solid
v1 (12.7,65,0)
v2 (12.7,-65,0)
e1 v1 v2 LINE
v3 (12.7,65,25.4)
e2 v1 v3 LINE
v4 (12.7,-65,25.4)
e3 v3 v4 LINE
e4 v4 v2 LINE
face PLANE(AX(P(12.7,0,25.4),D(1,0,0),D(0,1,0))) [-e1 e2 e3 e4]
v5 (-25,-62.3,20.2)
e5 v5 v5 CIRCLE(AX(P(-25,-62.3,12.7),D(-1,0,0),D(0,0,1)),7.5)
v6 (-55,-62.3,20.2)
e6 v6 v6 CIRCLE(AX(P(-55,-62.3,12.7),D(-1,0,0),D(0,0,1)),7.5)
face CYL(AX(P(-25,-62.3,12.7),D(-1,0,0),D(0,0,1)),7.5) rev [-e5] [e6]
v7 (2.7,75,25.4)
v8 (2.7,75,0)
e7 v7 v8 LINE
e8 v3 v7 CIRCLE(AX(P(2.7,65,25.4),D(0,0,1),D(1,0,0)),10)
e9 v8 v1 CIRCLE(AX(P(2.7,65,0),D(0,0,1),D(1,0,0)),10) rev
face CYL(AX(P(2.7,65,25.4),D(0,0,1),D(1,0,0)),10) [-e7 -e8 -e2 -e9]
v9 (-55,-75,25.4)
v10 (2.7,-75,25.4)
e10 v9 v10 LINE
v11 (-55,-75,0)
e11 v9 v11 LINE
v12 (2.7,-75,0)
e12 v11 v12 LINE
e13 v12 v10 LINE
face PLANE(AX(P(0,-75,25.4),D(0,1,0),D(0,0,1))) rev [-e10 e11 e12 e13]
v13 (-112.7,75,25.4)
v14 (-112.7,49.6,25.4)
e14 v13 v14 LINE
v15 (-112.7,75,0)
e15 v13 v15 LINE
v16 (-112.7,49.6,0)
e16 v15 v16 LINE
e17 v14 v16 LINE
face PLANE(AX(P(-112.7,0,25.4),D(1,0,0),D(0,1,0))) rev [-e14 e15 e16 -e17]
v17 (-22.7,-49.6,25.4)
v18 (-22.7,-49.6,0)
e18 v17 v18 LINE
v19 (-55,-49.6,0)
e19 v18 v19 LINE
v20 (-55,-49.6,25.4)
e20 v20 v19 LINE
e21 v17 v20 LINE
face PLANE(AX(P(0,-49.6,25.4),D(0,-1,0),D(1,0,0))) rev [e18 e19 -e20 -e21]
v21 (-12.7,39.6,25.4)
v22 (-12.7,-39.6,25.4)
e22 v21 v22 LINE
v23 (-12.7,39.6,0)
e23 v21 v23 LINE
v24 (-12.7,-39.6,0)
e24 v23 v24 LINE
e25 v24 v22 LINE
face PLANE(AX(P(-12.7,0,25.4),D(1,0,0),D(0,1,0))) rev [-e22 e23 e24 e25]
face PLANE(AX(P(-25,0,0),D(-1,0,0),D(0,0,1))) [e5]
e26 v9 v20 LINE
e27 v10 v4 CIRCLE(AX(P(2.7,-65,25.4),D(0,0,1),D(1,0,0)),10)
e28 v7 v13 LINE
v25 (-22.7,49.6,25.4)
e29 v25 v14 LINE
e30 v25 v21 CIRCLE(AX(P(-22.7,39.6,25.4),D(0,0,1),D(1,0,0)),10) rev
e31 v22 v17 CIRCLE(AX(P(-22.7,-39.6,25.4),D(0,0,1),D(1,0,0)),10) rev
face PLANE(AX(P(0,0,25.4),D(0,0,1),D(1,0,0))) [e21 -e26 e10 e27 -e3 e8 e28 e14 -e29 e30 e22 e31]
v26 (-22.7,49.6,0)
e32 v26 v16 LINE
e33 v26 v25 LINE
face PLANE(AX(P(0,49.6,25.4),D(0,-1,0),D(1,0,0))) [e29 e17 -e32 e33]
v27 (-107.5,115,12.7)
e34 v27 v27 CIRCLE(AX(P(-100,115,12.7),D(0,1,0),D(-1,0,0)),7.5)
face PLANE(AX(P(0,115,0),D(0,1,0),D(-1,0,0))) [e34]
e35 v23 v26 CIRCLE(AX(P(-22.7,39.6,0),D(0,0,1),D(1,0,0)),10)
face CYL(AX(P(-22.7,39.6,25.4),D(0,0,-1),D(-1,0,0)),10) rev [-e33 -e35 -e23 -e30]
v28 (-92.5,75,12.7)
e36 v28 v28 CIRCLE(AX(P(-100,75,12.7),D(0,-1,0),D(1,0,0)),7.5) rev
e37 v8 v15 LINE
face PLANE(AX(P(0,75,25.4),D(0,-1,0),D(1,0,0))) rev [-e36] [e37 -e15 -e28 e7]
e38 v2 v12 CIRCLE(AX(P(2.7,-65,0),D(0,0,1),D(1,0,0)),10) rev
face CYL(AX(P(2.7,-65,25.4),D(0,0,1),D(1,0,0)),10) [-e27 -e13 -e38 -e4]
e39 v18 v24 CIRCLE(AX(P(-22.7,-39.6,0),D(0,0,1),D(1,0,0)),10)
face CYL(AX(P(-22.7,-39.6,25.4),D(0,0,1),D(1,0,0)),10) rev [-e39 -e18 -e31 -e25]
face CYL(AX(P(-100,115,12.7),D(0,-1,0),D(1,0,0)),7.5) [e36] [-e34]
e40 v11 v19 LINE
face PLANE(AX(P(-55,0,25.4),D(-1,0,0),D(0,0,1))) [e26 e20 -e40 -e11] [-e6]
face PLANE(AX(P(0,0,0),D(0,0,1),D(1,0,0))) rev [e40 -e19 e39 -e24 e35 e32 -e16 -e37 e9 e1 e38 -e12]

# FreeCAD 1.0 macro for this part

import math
import FreeCAD as App
import Part
import Sketcher


def edges_at(feature, points):
    """Names of the edges that pass closest to the given points."""
    edges = feature.Shape.Edges
    near = lambda p: min(range(len(edges)), key=lambda i: edges[i].distToShape(Part.Vertex(*p))[0])
    return sorted({f"Edge{near(p) + 1}" for p in points})


def add_polygon(sketch, points):
    """Adds a closed chain of lines whose ends are joined by coincident constraints."""
    first, n = sketch.GeometryCount, len(points)
    for a, b in zip(points, points[1:] + points[:1]):
        sketch.addGeometry(Part.LineSegment(App.Vector(*a, 0), App.Vector(*b, 0)), False)
    for i in range(n):
        sketch.addConstraint(Sketcher.Constraint("Coincident", first + i, 2, first + (i + 1) % n, 1))

doc = App.newDocument("Part")
params = doc.addObject("Spreadsheet::Sheet", "Params")
for row, (alias, value) in enumerate([
    ("sketch1_width", "100 mm"),
    ("sketch1_height", "150 mm"),
    ("sketch1_width2", "42.3 mm"),
    ("sketch1_width3", "67.7 mm"),
    ("sketch1_height2", "25.4 mm"),
    ("pad1_length", "25.4 mm"),
    ("sketch2_radius", "7.5 mm"),
    ("pad2_length", "40 mm"),
    ("sketch3_radius", "7.5 mm"),
    ("pocket1_length", "30 mm"),
    ("fillet_radius", "10 mm"),
], start=1):
    params.set(f"A{row}", alias)
    params.set(f"B{row}", "=" + value)
    params.setAlias(f"B{row}", alias)

body = doc.addObject("PartDesign::Body", "Body")

# Sketch on XY plane
sketch1 = body.newObject("Sketcher::SketchObject", "Sketch")
sketch1.AttachmentSupport = (doc.getObject("XY_Plane"), [""])
sketch1.MapMode = "FlatFace"
add_polygon(sketch1, [(-113, 75), (-113, 50), (-13, 50), (-13, -50), (-55, -50), (-55, -75), (13, -75), (13, 75)])  # lines 0-7
sketch1.addConstraint(Sketcher.Constraint("Vertical", 0))
sketch1.addConstraint(Sketcher.Constraint("Horizontal", 1))
sketch1.addConstraint(Sketcher.Constraint("Vertical", 2))
sketch1.addConstraint(Sketcher.Constraint("Horizontal", 3))
sketch1.addConstraint(Sketcher.Constraint("Vertical", 4))
sketch1.addConstraint(Sketcher.Constraint("Horizontal", 5))
sketch1.addConstraint(Sketcher.Constraint("Vertical", 6))
sketch1.addConstraint(Sketcher.Constraint("Horizontal", 7))
sketch1.addConstraint(Sketcher.Constraint("Equal", 0, 4))
sketch1.addConstraint(Sketcher.Constraint("DistanceX", 1, 1, 1, 2, 100.0))
sketch1.addConstraint(Sketcher.Constraint("DistanceY", 6, 1, 6, 2, 150.0))
sketch1.addConstraint(Sketcher.Constraint("DistanceX", 3, 2, 3, 1, 42.3))
sketch1.addConstraint(Sketcher.Constraint("DistanceX", 5, 1, 5, 2, 67.7))
sketch1.addConstraint(Sketcher.Constraint("DistanceY", 0, 2, 0, 1, 25.4))
sketch1.addConstraint(Sketcher.Constraint("DistanceX", 3, 2, -1, 1, 55.0))
sketch1.addConstraint(Sketcher.Constraint("DistanceY", 4, 2, -1, 1, 75.0))
sketch1.setExpression("Constraints[17]", "Params.sketch1_width")
sketch1.setExpression("Constraints[18]", "Params.sketch1_height")
sketch1.setExpression("Constraints[19]", "Params.sketch1_width2")
sketch1.setExpression("Constraints[20]", "Params.sketch1_width3")
sketch1.setExpression("Constraints[21]", "Params.sketch1_height2")
pad1 = body.newObject("PartDesign::Pad", "Pad")
pad1.Profile = sketch1
pad1.setExpression("Length", "Params.pad1_length")

# Sketch on XZ plane
sketch2 = body.newObject("Sketcher::SketchObject", "Sketch001")
sketch2.AttachmentSupport = (doc.getObject("XZ_Plane"), [""])
sketch2.MapMode = "FlatFace"
sketch2.AttachmentOffset = App.Placement(App.Vector(0, 0, -75), App.Rotation())
sketch2.addGeometry(Part.ArcOfCircle(Part.Circle(App.Vector(-100, 13, 0), App.Vector(0, 0, 1), 8), math.radians(135), math.radians(315)), False)
sketch2.addGeometry(Part.ArcOfCircle(Part.Circle(App.Vector(-100, 13, 0), App.Vector(0, 0, 1), 8), math.radians(0), math.radians(135)), False)
sketch2.addGeometry(Part.ArcOfCircle(Part.Circle(App.Vector(-100, 13, 0), App.Vector(0, 0, 1), 7), math.radians(-45), math.radians(0)), False)
sketch2.addConstraint(Sketcher.Constraint("Tangent", 0, 1, 1, 2))
sketch2.addConstraint(Sketcher.Constraint("Tangent", 1, 1, 2, 2))
sketch2.addConstraint(Sketcher.Constraint("Tangent", 2, 1, 0, 2))
sketch2.addConstraint(Sketcher.Constraint("Horizontal", 2, 3, 1, 1))
sketch2.addConstraint(Sketcher.Constraint("Radius", 0, 7.5))
sketch2.addConstraint(Sketcher.Constraint("DistanceX", 0, 3, -1, 1, 100.0))
sketch2.addConstraint(Sketcher.Constraint("DistanceY", -1, 1, 0, 3, 12.7))
sketch2.addConstraint(Sketcher.Constraint("DistanceX", 0, 1, -1, 1, 105.303301))
sketch2.addConstraint(Sketcher.Constraint("DistanceX", 2, 1, -1, 1, 94.696699))
sketch2.setExpression("Constraints[4]", "Params.sketch2_radius")
pad2 = body.newObject("PartDesign::Pad", "Pad001")
pad2.Profile = sketch2
pad2.setExpression("Length", "Params.pad2_length")
pad2.Reversed = True

# Sketch on YZ plane
sketch3 = body.newObject("Sketcher::SketchObject", "Sketch002")
sketch3.AttachmentSupport = (doc.getObject("YZ_Plane"), [""])
sketch3.MapMode = "FlatFace"
sketch3.AttachmentOffset = App.Placement(App.Vector(0, 0, -55), App.Rotation())
sketch3.addGeometry(Part.ArcOfCircle(Part.Circle(App.Vector(-62, 13, 0), App.Vector(0, 0, 1), 7), math.radians(45), math.radians(90)), False)
sketch3.addGeometry(Part.ArcOfCircle(Part.Circle(App.Vector(-62, 13, 0), App.Vector(0, 0, 1), 8), math.radians(-135), math.radians(45)), False)
sketch3.addGeometry(Part.ArcOfCircle(Part.Circle(App.Vector(-62, 13, 0), App.Vector(0, 0, 1), 8), math.radians(90), math.radians(225)), False)
sketch3.addConstraint(Sketcher.Constraint("Tangent", 0, 1, 1, 2))
sketch3.addConstraint(Sketcher.Constraint("Tangent", 1, 1, 2, 2))
sketch3.addConstraint(Sketcher.Constraint("Tangent", 2, 1, 0, 2))
sketch3.addConstraint(Sketcher.Constraint("Vertical", 1, 3, 2, 1))
sketch3.addConstraint(Sketcher.Constraint("Radius", 0, 7.5))
sketch3.addConstraint(Sketcher.Constraint("DistanceX", 0, 3, -1, 1, 62.3))
sketch3.addConstraint(Sketcher.Constraint("DistanceY", -1, 1, 0, 3, 12.7))
sketch3.addConstraint(Sketcher.Constraint("DistanceX", 0, 1, -1, 1, 56.996699))
sketch3.addConstraint(Sketcher.Constraint("DistanceX", 1, 1, -1, 1, 67.603301))
sketch3.setExpression("Constraints[4]", "Params.sketch3_radius")
pocket1 = body.newObject("PartDesign::Pocket", "Pocket")
pocket1.Profile = sketch3
pocket1.setExpression("Length", "Params.pocket1_length")
pocket1.Reversed = True
doc.recompute()

fillet = body.newObject("PartDesign::Fillet", "Fillet")
fillet.Base = (pocket1, edges_at(pocket1, [
    (12.7, 75, 12.7),
    (12.7, -75, 12.7),
    (-12.7, -49.6, 12.7),
    (-12.7, 49.6, 12.7),
]))
fillet.setExpression("Radius", "Params.fillet_radius")

doc.recompute()
